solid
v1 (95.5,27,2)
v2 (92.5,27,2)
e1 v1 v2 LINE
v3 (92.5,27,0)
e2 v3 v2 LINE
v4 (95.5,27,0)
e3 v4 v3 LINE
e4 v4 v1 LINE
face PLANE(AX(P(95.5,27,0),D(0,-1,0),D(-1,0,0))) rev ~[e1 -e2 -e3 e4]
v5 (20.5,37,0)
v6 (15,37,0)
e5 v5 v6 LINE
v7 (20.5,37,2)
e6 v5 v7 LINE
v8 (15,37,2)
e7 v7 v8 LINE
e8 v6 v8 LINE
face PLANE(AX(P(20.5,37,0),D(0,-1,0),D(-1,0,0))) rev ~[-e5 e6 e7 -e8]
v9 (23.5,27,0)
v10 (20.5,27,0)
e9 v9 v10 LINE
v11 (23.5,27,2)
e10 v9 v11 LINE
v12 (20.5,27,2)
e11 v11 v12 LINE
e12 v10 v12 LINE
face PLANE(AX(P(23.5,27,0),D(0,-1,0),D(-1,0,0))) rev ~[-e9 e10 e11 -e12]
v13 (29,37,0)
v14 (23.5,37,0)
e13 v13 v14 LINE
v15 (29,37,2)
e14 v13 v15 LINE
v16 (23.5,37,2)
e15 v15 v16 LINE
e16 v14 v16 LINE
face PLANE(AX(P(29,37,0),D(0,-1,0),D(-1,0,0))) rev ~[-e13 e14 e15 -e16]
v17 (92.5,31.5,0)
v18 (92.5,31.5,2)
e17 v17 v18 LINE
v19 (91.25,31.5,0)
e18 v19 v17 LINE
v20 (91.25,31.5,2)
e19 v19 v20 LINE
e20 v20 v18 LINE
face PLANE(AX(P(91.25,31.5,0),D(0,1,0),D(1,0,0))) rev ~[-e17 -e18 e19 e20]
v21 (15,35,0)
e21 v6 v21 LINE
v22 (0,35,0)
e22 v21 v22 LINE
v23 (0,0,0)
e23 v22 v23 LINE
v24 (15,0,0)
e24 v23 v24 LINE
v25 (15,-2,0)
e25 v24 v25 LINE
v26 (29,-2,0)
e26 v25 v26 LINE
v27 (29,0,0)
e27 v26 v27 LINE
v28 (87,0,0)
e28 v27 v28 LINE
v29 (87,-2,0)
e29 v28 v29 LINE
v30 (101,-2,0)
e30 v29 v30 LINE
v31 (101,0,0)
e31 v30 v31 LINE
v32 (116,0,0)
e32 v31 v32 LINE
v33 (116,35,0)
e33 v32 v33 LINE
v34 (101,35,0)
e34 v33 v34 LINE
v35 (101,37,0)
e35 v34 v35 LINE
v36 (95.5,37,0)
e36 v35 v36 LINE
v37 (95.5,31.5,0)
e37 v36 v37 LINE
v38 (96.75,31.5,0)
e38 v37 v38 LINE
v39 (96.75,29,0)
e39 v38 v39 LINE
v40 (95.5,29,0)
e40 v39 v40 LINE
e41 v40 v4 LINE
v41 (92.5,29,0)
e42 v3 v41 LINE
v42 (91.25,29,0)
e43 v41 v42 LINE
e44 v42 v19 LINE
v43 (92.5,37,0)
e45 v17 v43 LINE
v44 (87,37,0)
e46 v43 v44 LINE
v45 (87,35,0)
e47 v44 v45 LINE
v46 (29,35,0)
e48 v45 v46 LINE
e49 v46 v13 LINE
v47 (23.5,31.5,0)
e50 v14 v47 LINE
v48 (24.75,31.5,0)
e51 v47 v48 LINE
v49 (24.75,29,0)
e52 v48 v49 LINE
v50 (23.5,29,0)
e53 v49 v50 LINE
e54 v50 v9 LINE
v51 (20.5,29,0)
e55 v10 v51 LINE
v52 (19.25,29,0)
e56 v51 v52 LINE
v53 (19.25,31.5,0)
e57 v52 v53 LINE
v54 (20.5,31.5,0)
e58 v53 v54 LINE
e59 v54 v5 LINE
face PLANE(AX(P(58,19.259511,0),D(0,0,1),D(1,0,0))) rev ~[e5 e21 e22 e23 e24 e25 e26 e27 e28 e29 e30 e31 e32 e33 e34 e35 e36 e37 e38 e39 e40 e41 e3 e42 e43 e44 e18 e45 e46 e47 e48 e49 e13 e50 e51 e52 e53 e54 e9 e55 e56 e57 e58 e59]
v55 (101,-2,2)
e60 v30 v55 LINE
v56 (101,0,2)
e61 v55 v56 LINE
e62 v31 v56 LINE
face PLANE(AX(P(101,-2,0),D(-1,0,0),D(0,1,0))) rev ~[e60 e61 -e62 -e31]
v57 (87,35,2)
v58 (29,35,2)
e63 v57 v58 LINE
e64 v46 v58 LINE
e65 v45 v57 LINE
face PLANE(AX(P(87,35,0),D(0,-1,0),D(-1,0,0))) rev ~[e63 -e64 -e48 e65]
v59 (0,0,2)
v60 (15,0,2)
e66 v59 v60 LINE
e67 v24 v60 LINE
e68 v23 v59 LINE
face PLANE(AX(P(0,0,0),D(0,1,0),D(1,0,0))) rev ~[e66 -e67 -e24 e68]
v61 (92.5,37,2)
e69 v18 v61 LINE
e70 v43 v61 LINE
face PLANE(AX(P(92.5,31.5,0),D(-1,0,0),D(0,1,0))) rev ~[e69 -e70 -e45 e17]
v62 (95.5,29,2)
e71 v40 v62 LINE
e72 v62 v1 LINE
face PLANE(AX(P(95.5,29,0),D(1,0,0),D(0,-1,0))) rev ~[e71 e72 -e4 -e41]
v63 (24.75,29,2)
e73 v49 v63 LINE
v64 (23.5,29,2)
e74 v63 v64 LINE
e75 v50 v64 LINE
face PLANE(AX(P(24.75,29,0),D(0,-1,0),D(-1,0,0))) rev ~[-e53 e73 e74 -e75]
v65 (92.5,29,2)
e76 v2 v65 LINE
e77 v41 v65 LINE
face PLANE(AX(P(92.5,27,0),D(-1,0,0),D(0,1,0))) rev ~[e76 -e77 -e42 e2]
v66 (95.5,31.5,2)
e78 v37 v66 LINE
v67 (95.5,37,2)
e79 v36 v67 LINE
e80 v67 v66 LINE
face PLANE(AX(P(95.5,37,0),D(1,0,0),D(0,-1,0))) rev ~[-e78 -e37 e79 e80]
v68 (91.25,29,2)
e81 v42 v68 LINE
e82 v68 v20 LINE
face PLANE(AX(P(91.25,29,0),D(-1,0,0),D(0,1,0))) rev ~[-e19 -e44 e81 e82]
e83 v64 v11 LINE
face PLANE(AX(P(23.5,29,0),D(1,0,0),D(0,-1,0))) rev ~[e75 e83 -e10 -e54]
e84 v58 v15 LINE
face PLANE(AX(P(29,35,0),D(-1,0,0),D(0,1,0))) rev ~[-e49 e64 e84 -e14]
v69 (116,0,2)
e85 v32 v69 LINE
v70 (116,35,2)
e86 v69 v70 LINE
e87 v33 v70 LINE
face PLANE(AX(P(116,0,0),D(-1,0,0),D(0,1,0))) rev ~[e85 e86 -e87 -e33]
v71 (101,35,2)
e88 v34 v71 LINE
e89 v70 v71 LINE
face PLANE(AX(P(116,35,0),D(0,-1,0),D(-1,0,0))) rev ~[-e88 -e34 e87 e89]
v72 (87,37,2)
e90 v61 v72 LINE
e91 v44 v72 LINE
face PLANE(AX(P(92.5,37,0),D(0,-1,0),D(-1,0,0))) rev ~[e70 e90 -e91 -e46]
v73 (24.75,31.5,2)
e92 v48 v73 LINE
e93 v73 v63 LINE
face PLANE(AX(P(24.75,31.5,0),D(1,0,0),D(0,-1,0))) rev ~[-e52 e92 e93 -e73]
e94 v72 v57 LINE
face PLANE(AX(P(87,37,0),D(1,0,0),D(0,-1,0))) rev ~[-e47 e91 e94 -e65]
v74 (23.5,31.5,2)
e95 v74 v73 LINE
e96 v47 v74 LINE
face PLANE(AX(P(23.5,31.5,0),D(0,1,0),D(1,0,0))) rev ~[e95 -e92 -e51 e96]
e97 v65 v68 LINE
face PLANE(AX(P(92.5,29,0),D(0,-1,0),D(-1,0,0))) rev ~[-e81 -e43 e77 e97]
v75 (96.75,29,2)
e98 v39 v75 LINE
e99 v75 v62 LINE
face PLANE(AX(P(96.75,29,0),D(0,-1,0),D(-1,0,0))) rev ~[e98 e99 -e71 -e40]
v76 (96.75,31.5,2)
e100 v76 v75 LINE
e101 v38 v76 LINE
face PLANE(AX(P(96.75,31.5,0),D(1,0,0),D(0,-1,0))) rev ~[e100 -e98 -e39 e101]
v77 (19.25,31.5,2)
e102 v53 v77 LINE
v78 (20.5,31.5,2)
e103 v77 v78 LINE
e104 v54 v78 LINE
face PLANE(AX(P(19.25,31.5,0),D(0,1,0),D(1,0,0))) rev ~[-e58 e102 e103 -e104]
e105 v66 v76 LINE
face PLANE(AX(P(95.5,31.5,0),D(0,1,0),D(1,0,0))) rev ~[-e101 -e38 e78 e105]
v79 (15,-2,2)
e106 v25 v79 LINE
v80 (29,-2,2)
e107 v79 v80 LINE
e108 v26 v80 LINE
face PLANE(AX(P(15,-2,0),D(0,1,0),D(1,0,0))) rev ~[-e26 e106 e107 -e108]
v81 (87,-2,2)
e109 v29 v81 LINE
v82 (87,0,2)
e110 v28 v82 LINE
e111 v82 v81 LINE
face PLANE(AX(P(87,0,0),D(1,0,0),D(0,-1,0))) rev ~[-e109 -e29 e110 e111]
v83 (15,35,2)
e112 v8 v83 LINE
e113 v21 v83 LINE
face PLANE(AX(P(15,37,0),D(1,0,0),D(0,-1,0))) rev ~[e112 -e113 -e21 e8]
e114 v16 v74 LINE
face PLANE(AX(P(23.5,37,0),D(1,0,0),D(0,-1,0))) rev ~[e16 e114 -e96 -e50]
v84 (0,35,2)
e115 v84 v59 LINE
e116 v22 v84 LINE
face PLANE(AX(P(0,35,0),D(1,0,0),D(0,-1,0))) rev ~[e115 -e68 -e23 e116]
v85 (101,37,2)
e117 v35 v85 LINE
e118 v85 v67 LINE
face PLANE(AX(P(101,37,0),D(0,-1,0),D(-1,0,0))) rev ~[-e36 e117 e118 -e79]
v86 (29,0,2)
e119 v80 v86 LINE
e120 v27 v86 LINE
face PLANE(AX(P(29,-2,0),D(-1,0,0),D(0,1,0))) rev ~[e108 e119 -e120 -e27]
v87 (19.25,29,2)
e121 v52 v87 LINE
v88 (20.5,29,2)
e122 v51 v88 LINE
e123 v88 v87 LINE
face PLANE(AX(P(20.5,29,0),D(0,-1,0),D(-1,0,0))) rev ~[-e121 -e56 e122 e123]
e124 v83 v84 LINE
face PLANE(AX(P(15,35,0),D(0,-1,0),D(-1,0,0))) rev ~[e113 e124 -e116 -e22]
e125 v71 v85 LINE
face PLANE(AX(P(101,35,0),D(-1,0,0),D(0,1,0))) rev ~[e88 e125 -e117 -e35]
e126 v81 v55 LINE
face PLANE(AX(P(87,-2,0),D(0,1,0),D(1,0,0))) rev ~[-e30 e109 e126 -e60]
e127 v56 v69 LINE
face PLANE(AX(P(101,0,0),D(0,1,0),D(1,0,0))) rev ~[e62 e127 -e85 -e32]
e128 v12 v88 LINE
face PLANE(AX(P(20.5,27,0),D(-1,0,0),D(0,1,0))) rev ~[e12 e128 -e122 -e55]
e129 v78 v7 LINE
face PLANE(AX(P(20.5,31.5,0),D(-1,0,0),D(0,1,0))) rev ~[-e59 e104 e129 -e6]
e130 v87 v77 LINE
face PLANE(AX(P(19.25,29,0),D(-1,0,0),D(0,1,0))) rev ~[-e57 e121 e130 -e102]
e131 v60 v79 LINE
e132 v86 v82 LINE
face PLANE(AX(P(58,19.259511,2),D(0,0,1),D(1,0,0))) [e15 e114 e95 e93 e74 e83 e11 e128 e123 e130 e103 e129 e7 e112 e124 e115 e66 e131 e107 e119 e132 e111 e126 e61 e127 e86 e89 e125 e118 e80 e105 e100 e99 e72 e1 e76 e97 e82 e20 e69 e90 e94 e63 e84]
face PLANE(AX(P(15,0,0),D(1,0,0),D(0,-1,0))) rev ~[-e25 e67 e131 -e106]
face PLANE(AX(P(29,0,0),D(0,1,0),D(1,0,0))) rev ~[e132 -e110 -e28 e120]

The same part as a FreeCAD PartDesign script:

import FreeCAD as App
import Part
import Sketcher

V = App.Vector

doc = App.newDocument("Part")
body = doc.addObject("PartDesign::Body", "Body")

sketch1 = body.newObject("Sketcher::SketchObject", "Sketch")
sketch1.AttachmentSupport = (doc.getObject("XY_Plane"), [""])
sketch1.MapMode = "FlatFace"
sketch1.addGeometry(Part.LineSegment(V(0, 0, 0), V(15, 0, 0)), False)
sketch1.addGeometry(Part.LineSegment(V(15, 0, 0), V(15, -2, 0)), False)
sketch1.addGeometry(Part.LineSegment(V(15, -2, 0), V(29, -2, 0)), False)
sketch1.addGeometry(Part.LineSegment(V(29, -2, 0), V(29, 0, 0)), False)
sketch1.addGeometry(Part.LineSegment(V(29, 0, 0), V(87, 0, 0)), False)
sketch1.addGeometry(Part.LineSegment(V(87, 0, 0), V(87, -2, 0)), False)
sketch1.addGeometry(Part.LineSegment(V(87, -2, 0), V(101, -2, 0)), False)
sketch1.addGeometry(Part.LineSegment(V(101, -2, 0), V(101, 0, 0)), False)
sketch1.addGeometry(Part.LineSegment(V(101, 0, 0), V(116, 0, 0)), False)
sketch1.addGeometry(Part.LineSegment(V(116, 0, 0), V(116, 35, 0)), False)
sketch1.addGeometry(Part.LineSegment(V(116, 35, 0), V(101, 35, 0)), False)
sketch1.addGeometry(Part.LineSegment(V(101, 35, 0), V(101, 37, 0)), False)
sketch1.addGeometry(Part.LineSegment(V(101, 37, 0), V(95.5, 37, 0)), False)
sketch1.addGeometry(Part.LineSegment(V(95.5, 37, 0), V(95.5, 31.5, 0)), False)
sketch1.addGeometry(Part.LineSegment(V(95.5, 31.5, 0), V(96.8, 31.5, 0)), False)
sketch1.addGeometry(Part.LineSegment(V(96.8, 31.5, 0), V(96.8, 29, 0)), False)
sketch1.addGeometry(Part.LineSegment(V(96.8, 29, 0), V(95.5, 29, 0)), False)
sketch1.addGeometry(Part.LineSegment(V(95.5, 29, 0), V(95.5, 27, 0)), False)
sketch1.addGeometry(Part.LineSegment(V(95.5, 27, 0), V(92.5, 27, 0)), False)
sketch1.addGeometry(Part.LineSegment(V(92.5, 27, 0), V(92.5, 29, 0)), False)
sketch1.addGeometry(Part.LineSegment(V(92.5, 29, 0), V(91.2, 29, 0)), False)
sketch1.addGeometry(Part.LineSegment(V(91.2, 29, 0), V(91.2, 31.5, 0)), False)
sketch1.addGeometry(Part.LineSegment(V(91.2, 31.5, 0), V(92.5, 31.5, 0)), False)
sketch1.addGeometry(Part.LineSegment(V(92.5, 31.5, 0), V(92.5, 37, 0)), False)
sketch1.addGeometry(Part.LineSegment(V(92.5, 37, 0), V(87, 37, 0)), False)
sketch1.addGeometry(Part.LineSegment(V(87, 37, 0), V(87, 35, 0)), False)
sketch1.addGeometry(Part.LineSegment(V(87, 35, 0), V(29, 35, 0)), False)
sketch1.addGeometry(Part.LineSegment(V(29, 35, 0), V(29, 37, 0)), False)
sketch1.addGeometry(Part.LineSegment(V(29, 37, 0), V(23.5, 37, 0)), False)
sketch1.addGeometry(Part.LineSegment(V(23.5, 37, 0), V(23.5, 31.5, 0)), False)
sketch1.addGeometry(Part.LineSegment(V(23.5, 31.5, 0), V(24.8, 31.5, 0)), False)
sketch1.addGeometry(Part.LineSegment(V(24.8, 31.5, 0), V(24.8, 29, 0)), False)
sketch1.addGeometry(Part.LineSegment(V(24.8, 29, 0), V(23.5, 29, 0)), False)
sketch1.addGeometry(Part.LineSegment(V(23.5, 29, 0), V(23.5, 27, 0)), False)
sketch1.addGeometry(Part.LineSegment(V(23.5, 27, 0), V(20.5, 27, 0)), False)
sketch1.addGeometry(Part.LineSegment(V(20.5, 27, 0), V(20.5, 29, 0)), False)
sketch1.addGeometry(Part.LineSegment(V(20.5, 29, 0), V(19.2, 29, 0)), False)
sketch1.addGeometry(Part.LineSegment(V(19.2, 29, 0), V(19.2, 31.5, 0)), False)
sketch1.addGeometry(Part.LineSegment(V(19.2, 31.5, 0), V(20.5, 31.5, 0)), False)
sketch1.addGeometry(Part.LineSegment(V(20.5, 31.5, 0), V(20.5, 37, 0)), False)
sketch1.addGeometry(Part.LineSegment(V(20.5, 37, 0), V(15, 37, 0)), False)
sketch1.addGeometry(Part.LineSegment(V(15, 37, 0), V(15, 35, 0)), False)
sketch1.addGeometry(Part.LineSegment(V(15, 35, 0), V(0, 35, 0)), False)
sketch1.addGeometry(Part.LineSegment(V(0, 35, 0), V(0, 0, 0)), False)
sketch1.addConstraint(Sketcher.Constraint("Coincident", 0, 2, 1, 1))
sketch1.addConstraint(Sketcher.Constraint("Coincident", 1, 2, 2, 1))
sketch1.addConstraint(Sketcher.Constraint("Coincident", 2, 2, 3, 1))
sketch1.addConstraint(Sketcher.Constraint("Coincident", 3, 2, 4, 1))
sketch1.addConstraint(Sketcher.Constraint("Coincident", 4, 2, 5, 1))
sketch1.addConstraint(Sketcher.Constraint("Coincident", 5, 2, 6, 1))
sketch1.addConstraint(Sketcher.Constraint("Coincident", 6, 2, 7, 1))
sketch1.addConstraint(Sketcher.Constraint("Coincident", 7, 2, 8, 1))
sketch1.addConstraint(Sketcher.Constraint("Coincident", 8, 2, 9, 1))
sketch1.addConstraint(Sketcher.Constraint("Coincident", 9, 2, 10, 1))
sketch1.addConstraint(Sketcher.Constraint("Coincident", 10, 2, 11, 1))
sketch1.addConstraint(Sketcher.Constraint("Coincident", 11, 2, 12, 1))
sketch1.addConstraint(Sketcher.Constraint("Coincident", 12, 2, 13, 1))
sketch1.addConstraint(Sketcher.Constraint("Coincident", 13, 2, 14, 1))
sketch1.addConstraint(Sketcher.Constraint("Coincident", 14, 2, 15, 1))
sketch1.addConstraint(Sketcher.Constraint("Coincident", 15, 2, 16, 1))
sketch1.addConstraint(Sketcher.Constraint("Coincident", 16, 2, 17, 1))
sketch1.addConstraint(Sketcher.Constraint("Coincident", 17, 2, 18, 1))
sketch1.addConstraint(Sketcher.Constraint("Coincident", 18, 2, 19, 1))
sketch1.addConstraint(Sketcher.Constraint("Coincident", 19, 2, 20, 1))
sketch1.addConstraint(Sketcher.Constraint("Coincident", 20, 2, 21, 1))
sketch1.addConstraint(Sketcher.Constraint("Coincident", 21, 2, 22, 1))
sketch1.addConstraint(Sketcher.Constraint("Coincident", 22, 2, 23, 1))
sketch1.addConstraint(Sketcher.Constraint("Coincident", 23, 2, 24, 1))
sketch1.addConstraint(Sketcher.Constraint("Coincident", 24, 2, 25, 1))
sketch1.addConstraint(Sketcher.Constraint("Coincident", 25, 2, 26, 1))
sketch1.addConstraint(Sketcher.Constraint("Coincident", 26, 2, 27, 1))
sketch1.addConstraint(Sketcher.Constraint("Coincident", 27, 2, 28, 1))
sketch1.addConstraint(Sketcher.Constraint("Coincident", 28, 2, 29, 1))
sketch1.addConstraint(Sketcher.Constraint("Coincident", 29, 2, 30, 1))
sketch1.addConstraint(Sketcher.Constraint("Coincident", 30, 2, 31, 1))
sketch1.addConstraint(Sketcher.Constraint("Coincident", 31, 2, 32, 1))
sketch1.addConstraint(Sketcher.Constraint("Coincident", 32, 2, 33, 1))
sketch1.addConstraint(Sketcher.Constraint("Coincident", 33, 2, 34, 1))
sketch1.addConstraint(Sketcher.Constraint("Coincident", 34, 2, 35, 1))
sketch1.addConstraint(Sketcher.Constraint("Coincident", 35, 2, 36, 1))
sketch1.addConstraint(Sketcher.Constraint("Coincident", 36, 2, 37, 1))
sketch1.addConstraint(Sketcher.Constraint("Coincident", 37, 2, 38, 1))
sketch1.addConstraint(Sketcher.Constraint("Coincident", 38, 2, 39, 1))
sketch1.addConstraint(Sketcher.Constraint("Coincident", 39, 2, 40, 1))
sketch1.addConstraint(Sketcher.Constraint("Coincident", 40, 2, 41, 1))
sketch1.addConstraint(Sketcher.Constraint("Coincident", 41, 2, 42, 1))
sketch1.addConstraint(Sketcher.Constraint("Coincident", 42, 2, 43, 1))
sketch1.addConstraint(Sketcher.Constraint("Coincident", 43, 2, 0, 1))
sketch1.addConstraint(Sketcher.Constraint("Horizontal", 0))
sketch1.addConstraint(Sketcher.Constraint("Vertical", 1))
sketch1.addConstraint(Sketcher.Constraint("Horizontal", 2))
sketch1.addConstraint(Sketcher.Constraint("Vertical", 3))
sketch1.addConstraint(Sketcher.Constraint("Horizontal", 4))
sketch1.addConstraint(Sketcher.Constraint("Vertical", 5))
sketch1.addConstraint(Sketcher.Constraint("Horizontal", 6))
sketch1.addConstraint(Sketcher.Constraint("Vertical", 7))
sketch1.addConstraint(Sketcher.Constraint("Horizontal", 8))
sketch1.addConstraint(Sketcher.Constraint("Vertical", 9))
sketch1.addConstraint(Sketcher.Constraint("Horizontal", 10))
sketch1.addConstraint(Sketcher.Constraint("Vertical", 11))
sketch1.addConstraint(Sketcher.Constraint("Horizontal", 12))
sketch1.addConstraint(Sketcher.Constraint("Vertical", 13))
sketch1.addConstraint(Sketcher.Constraint("Horizontal", 14))
sketch1.addConstraint(Sketcher.Constraint("Vertical", 15))
sketch1.addConstraint(Sketcher.Constraint("Horizontal", 16))
sketch1.addConstraint(Sketcher.Constraint("Vertical", 17))
sketch1.addConstraint(Sketcher.Constraint("Horizontal", 18))
sketch1.addConstraint(Sketcher.Constraint("Vertical", 19))
sketch1.addConstraint(Sketcher.Constraint("Horizontal", 20))
sketch1.addConstraint(Sketcher.Constraint("Vertical", 21))
sketch1.addConstraint(Sketcher.Constraint("Horizontal", 22))
sketch1.addConstraint(Sketcher.Constraint("Vertical", 23))
sketch1.addConstraint(Sketcher.Constraint("Horizontal", 24))
sketch1.addConstraint(Sketcher.Constraint("Vertical", 25))
sketch1.addConstraint(Sketcher.Constraint("Horizontal", 26))
sketch1.addConstraint(Sketcher.Constraint("Vertical", 27))
sketch1.addConstraint(Sketcher.Constraint("Horizontal", 28))
sketch1.addConstraint(Sketcher.Constraint("Vertical", 29))
sketch1.addConstraint(Sketcher.Constraint("Horizontal", 30))
sketch1.addConstraint(Sketcher.Constraint("Vertical", 31))
sketch1.addConstraint(Sketcher.Constraint("Horizontal", 32))
sketch1.addConstraint(Sketcher.Constraint("Vertical", 33))
sketch1.addConstraint(Sketcher.Constraint("Horizontal", 34))
sketch1.addConstraint(Sketcher.Constraint("Vertical", 35))
sketch1.addConstraint(Sketcher.Constraint("Horizontal", 36))
sketch1.addConstraint(Sketcher.Constraint("Vertical", 37))
sketch1.addConstraint(Sketcher.Constraint("Horizontal", 38))
sketch1.addConstraint(Sketcher.Constraint("Vertical", 39))
sketch1.addConstraint(Sketcher.Constraint("Horizontal", 40))
sketch1.addConstraint(Sketcher.Constraint("Vertical", 41))
sketch1.addConstraint(Sketcher.Constraint("Horizontal", 42))
sketch1.addConstraint(Sketcher.Constraint("Vertical", 43))
sketch1.addConstraint(Sketcher.Constraint("Coincident", 43, 2, -1, 1))
sketch1.addConstraint(Sketcher.Constraint("PointOnObject", 3, 2, -1))
sketch1.addConstraint(Sketcher.Constraint("PointOnObject", 7, 2, -1))
sketch1.addConstraint(Sketcher.Constraint("Horizontal", 2, 2, 5, 2))
sketch1.addConstraint(Sketcher.Constraint("Horizontal", 16, 2, 19, 2))
sketch1.addConstraint(Sketcher.Constraint("Horizontal", 14, 2, 21, 2))
sketch1.addConstraint(Sketcher.Constraint("Horizontal", 12, 2, 23, 2))
sketch1.addConstraint(Sketcher.Constraint("Horizontal", 10, 2, 25, 2))
sketch1.addConstraint(Sketcher.Constraint("Horizontal", 24, 2, 27, 2))
sketch1.addConstraint(Sketcher.Constraint("Horizontal", 22, 2, 29, 2))
sketch1.addConstraint(Sketcher.Constraint("Horizontal", 20, 2, 31, 2))
sketch1.addConstraint(Sketcher.Constraint("Horizontal", 18, 2, 33, 2))
sketch1.addConstraint(Sketcher.Constraint("Horizontal", 32, 2, 35, 2))
sketch1.addConstraint(Sketcher.Constraint("Horizontal", 30, 2, 37, 2))
sketch1.addConstraint(Sketcher.Constraint("Horizontal", 28, 2, 39, 2))
sketch1.addConstraint(Sketcher.Constraint("Horizontal", 26, 2, 41, 2))
sketch1.addConstraint(Sketcher.Constraint("Vertical", 7, 2, 10, 2))
sketch1.addConstraint(Sketcher.Constraint("Vertical", 13, 2, 16, 2))
sketch1.addConstraint(Sketcher.Constraint("Vertical", 19, 2, 22, 2))
sketch1.addConstraint(Sketcher.Constraint("Vertical", 5, 2, 24, 2))
sketch1.addConstraint(Sketcher.Constraint("Vertical", 3, 2, 26, 2))
sketch1.addConstraint(Sketcher.Constraint("Vertical", 29, 2, 32, 2))
sketch1.addConstraint(Sketcher.Constraint("Vertical", 35, 2, 38, 2))
sketch1.addConstraint(Sketcher.Constraint("Vertical", 1, 2, 40, 2))
sketch1.addConstraint(Sketcher.Constraint("Equal", 2, 6))
sketch1.addConstraint(Sketcher.Constraint("Equal", 0, 8))
sketch1.addConstraint(Sketcher.Constraint("Equal", 16, 20))
sketch1.addConstraint(Sketcher.Constraint("Equal", 12, 24))
sketch1.addConstraint(Sketcher.Constraint("Equal", 24, 28))
sketch1.addConstraint(Sketcher.Constraint("Equal", 22, 30))
sketch1.addConstraint(Sketcher.Constraint("Equal", 18, 34))
sketch1.addConstraint(Sketcher.Constraint("Equal", 32, 36))
sketch1.addConstraint(Sketcher.Constraint("Equal", 7, 11))
sketch1.addConstraint(Sketcher.Constraint("Equal", 40, 13))
sketch1.addConstraint(Sketcher.Constraint("Equal", 11, 17))
sketch1.addConstraint(Sketcher.Constraint("DistanceX", 0, 1, 0, 2, 15.0))
sketch1.addConstraint(Sketcher.Constraint("DistanceX", 2, 1, 2, 2, 14.0))
sketch1.addConstraint(Sketcher.Constraint("DistanceX", 4, 1, 4, 2, 58.0))
sketch1.addConstraint(Sketcher.Constraint("DistanceX", 18, 2, 18, 1, 3.0))
sketch1.addConstraint(Sketcher.Constraint("DistanceY", 1, 2, 1, 1, 2.0))
sketch1.addConstraint(Sketcher.Constraint("DistanceY", 9, 1, 9, 2, 35.0))
sketch1.addConstraint(Sketcher.Constraint("DistanceY", 15, 2, 15, 1, 2.5))
sketch1.addConstraint(Sketcher.Constraint("DistanceX", 14, 1, 14, 2, 1.25))
pad1 = body.newObject("PartDesign::Pad", "Pad")
pad1.Profile = sketch1
pad1.Length = 2

doc.recompute()
